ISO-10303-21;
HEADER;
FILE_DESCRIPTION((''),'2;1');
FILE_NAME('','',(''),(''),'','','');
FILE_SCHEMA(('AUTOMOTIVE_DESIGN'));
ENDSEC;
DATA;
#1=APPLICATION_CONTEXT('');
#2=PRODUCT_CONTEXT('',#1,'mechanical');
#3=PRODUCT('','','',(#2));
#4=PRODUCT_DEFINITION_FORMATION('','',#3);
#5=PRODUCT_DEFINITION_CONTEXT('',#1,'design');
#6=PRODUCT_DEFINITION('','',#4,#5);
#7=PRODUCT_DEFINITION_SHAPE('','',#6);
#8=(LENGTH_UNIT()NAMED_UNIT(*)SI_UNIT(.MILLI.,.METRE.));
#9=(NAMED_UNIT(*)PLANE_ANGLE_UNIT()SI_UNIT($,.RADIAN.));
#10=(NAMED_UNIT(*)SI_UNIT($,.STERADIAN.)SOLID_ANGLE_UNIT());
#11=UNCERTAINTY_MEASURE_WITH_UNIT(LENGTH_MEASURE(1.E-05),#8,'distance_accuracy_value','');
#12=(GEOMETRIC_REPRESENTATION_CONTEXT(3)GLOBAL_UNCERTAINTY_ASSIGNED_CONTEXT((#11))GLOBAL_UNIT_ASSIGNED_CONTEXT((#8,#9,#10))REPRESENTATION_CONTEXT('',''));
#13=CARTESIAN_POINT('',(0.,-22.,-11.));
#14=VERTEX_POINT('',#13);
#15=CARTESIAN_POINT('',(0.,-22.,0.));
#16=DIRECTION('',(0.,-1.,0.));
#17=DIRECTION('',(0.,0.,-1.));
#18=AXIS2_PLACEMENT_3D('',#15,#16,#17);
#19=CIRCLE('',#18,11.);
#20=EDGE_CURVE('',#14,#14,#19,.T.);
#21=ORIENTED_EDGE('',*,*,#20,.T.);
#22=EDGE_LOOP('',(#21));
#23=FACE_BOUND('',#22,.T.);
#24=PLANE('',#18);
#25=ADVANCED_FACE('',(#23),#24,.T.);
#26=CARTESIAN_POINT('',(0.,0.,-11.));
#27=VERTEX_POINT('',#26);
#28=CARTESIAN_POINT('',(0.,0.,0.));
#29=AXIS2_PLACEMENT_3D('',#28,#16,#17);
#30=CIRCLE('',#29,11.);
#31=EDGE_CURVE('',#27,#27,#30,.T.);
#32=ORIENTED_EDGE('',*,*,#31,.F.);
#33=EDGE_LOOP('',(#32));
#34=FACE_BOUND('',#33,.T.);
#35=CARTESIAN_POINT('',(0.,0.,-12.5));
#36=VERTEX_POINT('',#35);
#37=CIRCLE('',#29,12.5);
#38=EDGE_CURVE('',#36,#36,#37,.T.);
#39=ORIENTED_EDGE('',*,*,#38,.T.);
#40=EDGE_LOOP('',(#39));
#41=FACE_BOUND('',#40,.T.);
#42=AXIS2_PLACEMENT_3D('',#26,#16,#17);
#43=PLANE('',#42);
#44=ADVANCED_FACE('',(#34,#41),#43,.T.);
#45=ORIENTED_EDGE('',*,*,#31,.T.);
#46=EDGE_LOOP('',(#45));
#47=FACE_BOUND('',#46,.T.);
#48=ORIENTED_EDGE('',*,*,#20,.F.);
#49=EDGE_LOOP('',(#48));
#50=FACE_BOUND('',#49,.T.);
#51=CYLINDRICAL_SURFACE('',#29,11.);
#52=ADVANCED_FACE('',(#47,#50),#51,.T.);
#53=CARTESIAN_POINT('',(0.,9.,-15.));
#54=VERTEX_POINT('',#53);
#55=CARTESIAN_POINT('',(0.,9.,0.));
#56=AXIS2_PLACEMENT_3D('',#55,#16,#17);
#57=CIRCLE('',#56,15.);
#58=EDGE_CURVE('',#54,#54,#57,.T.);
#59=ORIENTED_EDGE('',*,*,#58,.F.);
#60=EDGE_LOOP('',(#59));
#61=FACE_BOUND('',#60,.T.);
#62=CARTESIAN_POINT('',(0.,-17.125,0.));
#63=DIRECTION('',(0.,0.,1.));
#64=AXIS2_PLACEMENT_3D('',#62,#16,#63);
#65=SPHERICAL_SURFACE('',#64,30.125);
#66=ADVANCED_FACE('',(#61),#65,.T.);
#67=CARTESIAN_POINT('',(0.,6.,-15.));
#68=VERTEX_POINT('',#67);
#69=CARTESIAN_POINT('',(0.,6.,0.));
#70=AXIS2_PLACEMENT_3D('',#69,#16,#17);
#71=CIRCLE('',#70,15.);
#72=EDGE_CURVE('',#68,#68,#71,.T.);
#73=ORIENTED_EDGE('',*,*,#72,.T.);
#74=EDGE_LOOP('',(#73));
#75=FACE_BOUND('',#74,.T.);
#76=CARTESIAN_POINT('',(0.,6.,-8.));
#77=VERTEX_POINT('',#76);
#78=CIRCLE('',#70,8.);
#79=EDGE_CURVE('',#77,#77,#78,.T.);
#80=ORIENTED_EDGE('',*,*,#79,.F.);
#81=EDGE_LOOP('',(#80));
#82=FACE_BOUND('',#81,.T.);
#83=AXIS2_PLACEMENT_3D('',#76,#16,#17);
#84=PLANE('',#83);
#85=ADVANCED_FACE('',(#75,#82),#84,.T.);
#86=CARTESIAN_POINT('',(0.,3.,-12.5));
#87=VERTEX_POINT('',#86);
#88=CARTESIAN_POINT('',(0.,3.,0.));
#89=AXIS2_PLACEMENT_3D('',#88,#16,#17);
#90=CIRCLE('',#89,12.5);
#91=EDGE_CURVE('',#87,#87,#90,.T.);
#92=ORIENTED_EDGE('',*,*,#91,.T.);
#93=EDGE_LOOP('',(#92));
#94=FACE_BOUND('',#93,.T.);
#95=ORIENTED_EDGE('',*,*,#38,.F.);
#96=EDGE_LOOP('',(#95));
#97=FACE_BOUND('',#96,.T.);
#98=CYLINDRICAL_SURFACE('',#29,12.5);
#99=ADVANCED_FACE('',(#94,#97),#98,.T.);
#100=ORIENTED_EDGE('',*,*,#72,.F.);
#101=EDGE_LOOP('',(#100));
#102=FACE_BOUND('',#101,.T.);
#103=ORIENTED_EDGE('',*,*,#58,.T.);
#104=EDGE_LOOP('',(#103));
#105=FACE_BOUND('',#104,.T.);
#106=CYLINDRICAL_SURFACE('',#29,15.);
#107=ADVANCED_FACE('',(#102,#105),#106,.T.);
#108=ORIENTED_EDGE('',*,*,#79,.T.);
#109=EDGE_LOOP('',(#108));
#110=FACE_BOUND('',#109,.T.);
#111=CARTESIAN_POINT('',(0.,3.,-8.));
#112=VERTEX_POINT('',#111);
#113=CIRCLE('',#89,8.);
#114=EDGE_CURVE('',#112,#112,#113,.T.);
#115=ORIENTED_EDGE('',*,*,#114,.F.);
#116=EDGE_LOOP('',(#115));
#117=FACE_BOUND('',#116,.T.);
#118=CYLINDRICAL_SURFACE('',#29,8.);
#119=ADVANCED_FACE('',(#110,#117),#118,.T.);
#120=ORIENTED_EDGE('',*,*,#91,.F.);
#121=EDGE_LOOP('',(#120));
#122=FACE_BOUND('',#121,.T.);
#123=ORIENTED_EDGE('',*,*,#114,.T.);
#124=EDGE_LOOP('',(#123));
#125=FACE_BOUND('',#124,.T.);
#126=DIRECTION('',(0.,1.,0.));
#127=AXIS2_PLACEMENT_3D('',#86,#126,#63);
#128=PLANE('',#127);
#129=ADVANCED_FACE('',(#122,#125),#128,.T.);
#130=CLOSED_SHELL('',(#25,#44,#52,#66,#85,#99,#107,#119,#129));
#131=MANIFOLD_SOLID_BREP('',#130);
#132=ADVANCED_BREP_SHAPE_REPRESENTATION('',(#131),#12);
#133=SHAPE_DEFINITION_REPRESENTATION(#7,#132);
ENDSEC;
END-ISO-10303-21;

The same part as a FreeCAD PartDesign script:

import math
import FreeCAD as App
import Part
import Sketcher

V = App.Vector
Q = App.Units.Quantity

doc = App.newDocument("Part")
body = doc.addObject("PartDesign::Body", "Body")

# Sketch on YZ plane
sketch1 = body.newObject("Sketcher::SketchObject", "Sketch")
sketch1.AttachmentSupport = (doc.getObject("YZ_Plane"), [""])
sketch1.MapMode = "FlatFace"
sketch1.addGeometry(Part.LineSegment(V(-22, 0, 0), V(-22, -11, 0)), False)
sketch1.addGeometry(Part.LineSegment(V(-22, -11, 0), V(0, -11, 0)), False)
sketch1.addGeometry(Part.LineSegment(V(0, -11, 0), V(0, -12.5, 0)), False)
sketch1.addGeometry(Part.LineSegment(V(0, -12.5, 0), V(3, -12.5, 0)), False)
sketch1.addGeometry(Part.LineSegment(V(3, -12.5, 0), V(3, -8, 0)), False)
sketch1.addGeometry(Part.LineSegment(V(3, -8, 0), V(6, -8, 0)), False)
sketch1.addGeometry(Part.LineSegment(V(6, -8, 0), V(6, -15, 0)), False)
sketch1.addGeometry(Part.LineSegment(V(6, -15, 0), V(9, -15, 0)), False)
sketch1.addGeometry(Part.ArcOfCircle(Part.Circle(V(-17.125, 0, 0), V(0, 0, 1), 30.125), math.radians(-29.862834), math.radians(0)), False)
sketch1.addGeometry(Part.LineSegment(V(13, 0, 0), V(-22, 0, 0)), False)
sketch1.addConstraint(Sketcher.Constraint("Coincident", 0, 2, 1, 1))
sketch1.addConstraint(Sketcher.Constraint("Coincident", 1, 2, 2, 1))
sketch1.addConstraint(Sketcher.Constraint("Coincident", 2, 2, 3, 1))
sketch1.addConstraint(Sketcher.Constraint("Coincident", 3, 2, 4, 1))
sketch1.addConstraint(Sketcher.Constraint("Coincident", 4, 2, 5, 1))
sketch1.addConstraint(Sketcher.Constraint("Coincident", 5, 2, 6, 1))
sketch1.addConstraint(Sketcher.Constraint("Coincident", 6, 2, 7, 1))
sketch1.addConstraint(Sketcher.Constraint("Coincident", 7, 2, 8, 1))
sketch1.addConstraint(Sketcher.Constraint("Coincident", 8, 2, 9, 1))
sketch1.addConstraint(Sketcher.Constraint("Coincident", 9, 2, 0, 1))
sketch1.addConstraint(Sketcher.Constraint("Vertical", 0))
sketch1.addConstraint(Sketcher.Constraint("Horizontal", 1))
sketch1.addConstraint(Sketcher.Constraint("Vertical", 2))
sketch1.addConstraint(Sketcher.Constraint("Horizontal", 3))
sketch1.addConstraint(Sketcher.Constraint("Vertical", 4))
sketch1.addConstraint(Sketcher.Constraint("Horizontal", 5))
sketch1.addConstraint(Sketcher.Constraint("Vertical", 6))
sketch1.addConstraint(Sketcher.Constraint("Horizontal", 7))
sketch1.addConstraint(Sketcher.Constraint("Horizontal", 9))
sketch1.addConstraint(Sketcher.Constraint("PointOnObject", 8, 3, -1))
sketch1.addConstraint(Sketcher.Constraint("PointOnObject", 1, 2, -2))
sketch1.addConstraint(Sketcher.Constraint("PointOnObject", 8, 2, -1))
sketch1.addConstraint(Sketcher.Constraint("Equal", 3, 5))
sketch1.addConstraint(Sketcher.Constraint("Equal", 5, 7))
sketch1.addConstraint(Sketcher.Constraint("DistanceX", 1, 1, 1, 2, Q("22 mm")))
sketch1.addConstraint(Sketcher.Constraint("DistanceX", 3, 1, 3, 2, Q("3 mm")))
sketch1.addConstraint(Sketcher.Constraint("DistanceX", 9, 2, 9, 1, Q("35 mm")))
sketch1.addConstraint(Sketcher.Constraint("DistanceY", 0, 2, 0, 1, Q("11 mm")))
sketch1.addConstraint(Sketcher.Constraint("DistanceY", 6, 2, 6, 1, Q("7 mm")))
sketch1.addConstraint(Sketcher.Constraint("DistanceY", 2, 2, 2, 1, Q("1.5 mm")))
sketch1.addConstraint(Sketcher.Constraint("DistanceY", 4, 1, 4, 2, Q("4.5 mm")))
revolution = body.newObject("PartDesign::Revolution", "Revolution")
revolution.Profile = sketch1
revolution.ReferenceAxis = (sketch1, ["H_Axis"])
revolution.Angle = 360

doc.recompute()
